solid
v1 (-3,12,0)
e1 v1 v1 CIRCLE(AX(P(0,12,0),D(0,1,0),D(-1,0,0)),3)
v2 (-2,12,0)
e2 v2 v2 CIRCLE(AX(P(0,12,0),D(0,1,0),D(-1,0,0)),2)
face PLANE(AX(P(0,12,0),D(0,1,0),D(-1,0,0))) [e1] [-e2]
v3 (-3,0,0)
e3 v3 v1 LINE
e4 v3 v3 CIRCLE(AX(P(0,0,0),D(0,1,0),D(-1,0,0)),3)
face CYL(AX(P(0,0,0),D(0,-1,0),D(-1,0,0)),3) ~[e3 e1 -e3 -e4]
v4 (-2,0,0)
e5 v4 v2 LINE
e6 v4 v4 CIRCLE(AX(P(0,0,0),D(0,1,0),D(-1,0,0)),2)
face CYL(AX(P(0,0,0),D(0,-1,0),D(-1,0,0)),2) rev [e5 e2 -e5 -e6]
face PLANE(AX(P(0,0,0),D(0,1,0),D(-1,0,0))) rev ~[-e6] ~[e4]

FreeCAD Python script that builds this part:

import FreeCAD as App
import Part
import Sketcher

V = App.Vector

doc = App.newDocument("Part")
body = doc.addObject("PartDesign::Body", "Body")

# Sketch on XZ plane
sketch1 = body.newObject("Sketcher::SketchObject", "Sketch")
sketch1.AttachmentSupport = (doc.getObject("XZ_Plane"), [""])
sketch1.MapMode = "FlatFace"
sketch1.addGeometry([
    Part.Circle(V(0, 0, 0), V(0, 0, 1), 3),
    Part.Circle(V(0, 0, 0), V(0, 0, 1), 2),
], False)
sketch1.addConstraint([
    Sketcher.Constraint("Coincident", 0, 3, -1, 1),
    Sketcher.Constraint("Coincident", 1, 3, -1, 1),
    Sketcher.Constraint("Diameter", 0, 6.0),
    Sketcher.Constraint("Diameter", 1, 4.0),
])
pad1 = body.newObject("PartDesign::Pad", "Pad")
pad1.Profile = sketch1
pad1.Length = 12
pad1.Reversed = True

doc.recompute()
